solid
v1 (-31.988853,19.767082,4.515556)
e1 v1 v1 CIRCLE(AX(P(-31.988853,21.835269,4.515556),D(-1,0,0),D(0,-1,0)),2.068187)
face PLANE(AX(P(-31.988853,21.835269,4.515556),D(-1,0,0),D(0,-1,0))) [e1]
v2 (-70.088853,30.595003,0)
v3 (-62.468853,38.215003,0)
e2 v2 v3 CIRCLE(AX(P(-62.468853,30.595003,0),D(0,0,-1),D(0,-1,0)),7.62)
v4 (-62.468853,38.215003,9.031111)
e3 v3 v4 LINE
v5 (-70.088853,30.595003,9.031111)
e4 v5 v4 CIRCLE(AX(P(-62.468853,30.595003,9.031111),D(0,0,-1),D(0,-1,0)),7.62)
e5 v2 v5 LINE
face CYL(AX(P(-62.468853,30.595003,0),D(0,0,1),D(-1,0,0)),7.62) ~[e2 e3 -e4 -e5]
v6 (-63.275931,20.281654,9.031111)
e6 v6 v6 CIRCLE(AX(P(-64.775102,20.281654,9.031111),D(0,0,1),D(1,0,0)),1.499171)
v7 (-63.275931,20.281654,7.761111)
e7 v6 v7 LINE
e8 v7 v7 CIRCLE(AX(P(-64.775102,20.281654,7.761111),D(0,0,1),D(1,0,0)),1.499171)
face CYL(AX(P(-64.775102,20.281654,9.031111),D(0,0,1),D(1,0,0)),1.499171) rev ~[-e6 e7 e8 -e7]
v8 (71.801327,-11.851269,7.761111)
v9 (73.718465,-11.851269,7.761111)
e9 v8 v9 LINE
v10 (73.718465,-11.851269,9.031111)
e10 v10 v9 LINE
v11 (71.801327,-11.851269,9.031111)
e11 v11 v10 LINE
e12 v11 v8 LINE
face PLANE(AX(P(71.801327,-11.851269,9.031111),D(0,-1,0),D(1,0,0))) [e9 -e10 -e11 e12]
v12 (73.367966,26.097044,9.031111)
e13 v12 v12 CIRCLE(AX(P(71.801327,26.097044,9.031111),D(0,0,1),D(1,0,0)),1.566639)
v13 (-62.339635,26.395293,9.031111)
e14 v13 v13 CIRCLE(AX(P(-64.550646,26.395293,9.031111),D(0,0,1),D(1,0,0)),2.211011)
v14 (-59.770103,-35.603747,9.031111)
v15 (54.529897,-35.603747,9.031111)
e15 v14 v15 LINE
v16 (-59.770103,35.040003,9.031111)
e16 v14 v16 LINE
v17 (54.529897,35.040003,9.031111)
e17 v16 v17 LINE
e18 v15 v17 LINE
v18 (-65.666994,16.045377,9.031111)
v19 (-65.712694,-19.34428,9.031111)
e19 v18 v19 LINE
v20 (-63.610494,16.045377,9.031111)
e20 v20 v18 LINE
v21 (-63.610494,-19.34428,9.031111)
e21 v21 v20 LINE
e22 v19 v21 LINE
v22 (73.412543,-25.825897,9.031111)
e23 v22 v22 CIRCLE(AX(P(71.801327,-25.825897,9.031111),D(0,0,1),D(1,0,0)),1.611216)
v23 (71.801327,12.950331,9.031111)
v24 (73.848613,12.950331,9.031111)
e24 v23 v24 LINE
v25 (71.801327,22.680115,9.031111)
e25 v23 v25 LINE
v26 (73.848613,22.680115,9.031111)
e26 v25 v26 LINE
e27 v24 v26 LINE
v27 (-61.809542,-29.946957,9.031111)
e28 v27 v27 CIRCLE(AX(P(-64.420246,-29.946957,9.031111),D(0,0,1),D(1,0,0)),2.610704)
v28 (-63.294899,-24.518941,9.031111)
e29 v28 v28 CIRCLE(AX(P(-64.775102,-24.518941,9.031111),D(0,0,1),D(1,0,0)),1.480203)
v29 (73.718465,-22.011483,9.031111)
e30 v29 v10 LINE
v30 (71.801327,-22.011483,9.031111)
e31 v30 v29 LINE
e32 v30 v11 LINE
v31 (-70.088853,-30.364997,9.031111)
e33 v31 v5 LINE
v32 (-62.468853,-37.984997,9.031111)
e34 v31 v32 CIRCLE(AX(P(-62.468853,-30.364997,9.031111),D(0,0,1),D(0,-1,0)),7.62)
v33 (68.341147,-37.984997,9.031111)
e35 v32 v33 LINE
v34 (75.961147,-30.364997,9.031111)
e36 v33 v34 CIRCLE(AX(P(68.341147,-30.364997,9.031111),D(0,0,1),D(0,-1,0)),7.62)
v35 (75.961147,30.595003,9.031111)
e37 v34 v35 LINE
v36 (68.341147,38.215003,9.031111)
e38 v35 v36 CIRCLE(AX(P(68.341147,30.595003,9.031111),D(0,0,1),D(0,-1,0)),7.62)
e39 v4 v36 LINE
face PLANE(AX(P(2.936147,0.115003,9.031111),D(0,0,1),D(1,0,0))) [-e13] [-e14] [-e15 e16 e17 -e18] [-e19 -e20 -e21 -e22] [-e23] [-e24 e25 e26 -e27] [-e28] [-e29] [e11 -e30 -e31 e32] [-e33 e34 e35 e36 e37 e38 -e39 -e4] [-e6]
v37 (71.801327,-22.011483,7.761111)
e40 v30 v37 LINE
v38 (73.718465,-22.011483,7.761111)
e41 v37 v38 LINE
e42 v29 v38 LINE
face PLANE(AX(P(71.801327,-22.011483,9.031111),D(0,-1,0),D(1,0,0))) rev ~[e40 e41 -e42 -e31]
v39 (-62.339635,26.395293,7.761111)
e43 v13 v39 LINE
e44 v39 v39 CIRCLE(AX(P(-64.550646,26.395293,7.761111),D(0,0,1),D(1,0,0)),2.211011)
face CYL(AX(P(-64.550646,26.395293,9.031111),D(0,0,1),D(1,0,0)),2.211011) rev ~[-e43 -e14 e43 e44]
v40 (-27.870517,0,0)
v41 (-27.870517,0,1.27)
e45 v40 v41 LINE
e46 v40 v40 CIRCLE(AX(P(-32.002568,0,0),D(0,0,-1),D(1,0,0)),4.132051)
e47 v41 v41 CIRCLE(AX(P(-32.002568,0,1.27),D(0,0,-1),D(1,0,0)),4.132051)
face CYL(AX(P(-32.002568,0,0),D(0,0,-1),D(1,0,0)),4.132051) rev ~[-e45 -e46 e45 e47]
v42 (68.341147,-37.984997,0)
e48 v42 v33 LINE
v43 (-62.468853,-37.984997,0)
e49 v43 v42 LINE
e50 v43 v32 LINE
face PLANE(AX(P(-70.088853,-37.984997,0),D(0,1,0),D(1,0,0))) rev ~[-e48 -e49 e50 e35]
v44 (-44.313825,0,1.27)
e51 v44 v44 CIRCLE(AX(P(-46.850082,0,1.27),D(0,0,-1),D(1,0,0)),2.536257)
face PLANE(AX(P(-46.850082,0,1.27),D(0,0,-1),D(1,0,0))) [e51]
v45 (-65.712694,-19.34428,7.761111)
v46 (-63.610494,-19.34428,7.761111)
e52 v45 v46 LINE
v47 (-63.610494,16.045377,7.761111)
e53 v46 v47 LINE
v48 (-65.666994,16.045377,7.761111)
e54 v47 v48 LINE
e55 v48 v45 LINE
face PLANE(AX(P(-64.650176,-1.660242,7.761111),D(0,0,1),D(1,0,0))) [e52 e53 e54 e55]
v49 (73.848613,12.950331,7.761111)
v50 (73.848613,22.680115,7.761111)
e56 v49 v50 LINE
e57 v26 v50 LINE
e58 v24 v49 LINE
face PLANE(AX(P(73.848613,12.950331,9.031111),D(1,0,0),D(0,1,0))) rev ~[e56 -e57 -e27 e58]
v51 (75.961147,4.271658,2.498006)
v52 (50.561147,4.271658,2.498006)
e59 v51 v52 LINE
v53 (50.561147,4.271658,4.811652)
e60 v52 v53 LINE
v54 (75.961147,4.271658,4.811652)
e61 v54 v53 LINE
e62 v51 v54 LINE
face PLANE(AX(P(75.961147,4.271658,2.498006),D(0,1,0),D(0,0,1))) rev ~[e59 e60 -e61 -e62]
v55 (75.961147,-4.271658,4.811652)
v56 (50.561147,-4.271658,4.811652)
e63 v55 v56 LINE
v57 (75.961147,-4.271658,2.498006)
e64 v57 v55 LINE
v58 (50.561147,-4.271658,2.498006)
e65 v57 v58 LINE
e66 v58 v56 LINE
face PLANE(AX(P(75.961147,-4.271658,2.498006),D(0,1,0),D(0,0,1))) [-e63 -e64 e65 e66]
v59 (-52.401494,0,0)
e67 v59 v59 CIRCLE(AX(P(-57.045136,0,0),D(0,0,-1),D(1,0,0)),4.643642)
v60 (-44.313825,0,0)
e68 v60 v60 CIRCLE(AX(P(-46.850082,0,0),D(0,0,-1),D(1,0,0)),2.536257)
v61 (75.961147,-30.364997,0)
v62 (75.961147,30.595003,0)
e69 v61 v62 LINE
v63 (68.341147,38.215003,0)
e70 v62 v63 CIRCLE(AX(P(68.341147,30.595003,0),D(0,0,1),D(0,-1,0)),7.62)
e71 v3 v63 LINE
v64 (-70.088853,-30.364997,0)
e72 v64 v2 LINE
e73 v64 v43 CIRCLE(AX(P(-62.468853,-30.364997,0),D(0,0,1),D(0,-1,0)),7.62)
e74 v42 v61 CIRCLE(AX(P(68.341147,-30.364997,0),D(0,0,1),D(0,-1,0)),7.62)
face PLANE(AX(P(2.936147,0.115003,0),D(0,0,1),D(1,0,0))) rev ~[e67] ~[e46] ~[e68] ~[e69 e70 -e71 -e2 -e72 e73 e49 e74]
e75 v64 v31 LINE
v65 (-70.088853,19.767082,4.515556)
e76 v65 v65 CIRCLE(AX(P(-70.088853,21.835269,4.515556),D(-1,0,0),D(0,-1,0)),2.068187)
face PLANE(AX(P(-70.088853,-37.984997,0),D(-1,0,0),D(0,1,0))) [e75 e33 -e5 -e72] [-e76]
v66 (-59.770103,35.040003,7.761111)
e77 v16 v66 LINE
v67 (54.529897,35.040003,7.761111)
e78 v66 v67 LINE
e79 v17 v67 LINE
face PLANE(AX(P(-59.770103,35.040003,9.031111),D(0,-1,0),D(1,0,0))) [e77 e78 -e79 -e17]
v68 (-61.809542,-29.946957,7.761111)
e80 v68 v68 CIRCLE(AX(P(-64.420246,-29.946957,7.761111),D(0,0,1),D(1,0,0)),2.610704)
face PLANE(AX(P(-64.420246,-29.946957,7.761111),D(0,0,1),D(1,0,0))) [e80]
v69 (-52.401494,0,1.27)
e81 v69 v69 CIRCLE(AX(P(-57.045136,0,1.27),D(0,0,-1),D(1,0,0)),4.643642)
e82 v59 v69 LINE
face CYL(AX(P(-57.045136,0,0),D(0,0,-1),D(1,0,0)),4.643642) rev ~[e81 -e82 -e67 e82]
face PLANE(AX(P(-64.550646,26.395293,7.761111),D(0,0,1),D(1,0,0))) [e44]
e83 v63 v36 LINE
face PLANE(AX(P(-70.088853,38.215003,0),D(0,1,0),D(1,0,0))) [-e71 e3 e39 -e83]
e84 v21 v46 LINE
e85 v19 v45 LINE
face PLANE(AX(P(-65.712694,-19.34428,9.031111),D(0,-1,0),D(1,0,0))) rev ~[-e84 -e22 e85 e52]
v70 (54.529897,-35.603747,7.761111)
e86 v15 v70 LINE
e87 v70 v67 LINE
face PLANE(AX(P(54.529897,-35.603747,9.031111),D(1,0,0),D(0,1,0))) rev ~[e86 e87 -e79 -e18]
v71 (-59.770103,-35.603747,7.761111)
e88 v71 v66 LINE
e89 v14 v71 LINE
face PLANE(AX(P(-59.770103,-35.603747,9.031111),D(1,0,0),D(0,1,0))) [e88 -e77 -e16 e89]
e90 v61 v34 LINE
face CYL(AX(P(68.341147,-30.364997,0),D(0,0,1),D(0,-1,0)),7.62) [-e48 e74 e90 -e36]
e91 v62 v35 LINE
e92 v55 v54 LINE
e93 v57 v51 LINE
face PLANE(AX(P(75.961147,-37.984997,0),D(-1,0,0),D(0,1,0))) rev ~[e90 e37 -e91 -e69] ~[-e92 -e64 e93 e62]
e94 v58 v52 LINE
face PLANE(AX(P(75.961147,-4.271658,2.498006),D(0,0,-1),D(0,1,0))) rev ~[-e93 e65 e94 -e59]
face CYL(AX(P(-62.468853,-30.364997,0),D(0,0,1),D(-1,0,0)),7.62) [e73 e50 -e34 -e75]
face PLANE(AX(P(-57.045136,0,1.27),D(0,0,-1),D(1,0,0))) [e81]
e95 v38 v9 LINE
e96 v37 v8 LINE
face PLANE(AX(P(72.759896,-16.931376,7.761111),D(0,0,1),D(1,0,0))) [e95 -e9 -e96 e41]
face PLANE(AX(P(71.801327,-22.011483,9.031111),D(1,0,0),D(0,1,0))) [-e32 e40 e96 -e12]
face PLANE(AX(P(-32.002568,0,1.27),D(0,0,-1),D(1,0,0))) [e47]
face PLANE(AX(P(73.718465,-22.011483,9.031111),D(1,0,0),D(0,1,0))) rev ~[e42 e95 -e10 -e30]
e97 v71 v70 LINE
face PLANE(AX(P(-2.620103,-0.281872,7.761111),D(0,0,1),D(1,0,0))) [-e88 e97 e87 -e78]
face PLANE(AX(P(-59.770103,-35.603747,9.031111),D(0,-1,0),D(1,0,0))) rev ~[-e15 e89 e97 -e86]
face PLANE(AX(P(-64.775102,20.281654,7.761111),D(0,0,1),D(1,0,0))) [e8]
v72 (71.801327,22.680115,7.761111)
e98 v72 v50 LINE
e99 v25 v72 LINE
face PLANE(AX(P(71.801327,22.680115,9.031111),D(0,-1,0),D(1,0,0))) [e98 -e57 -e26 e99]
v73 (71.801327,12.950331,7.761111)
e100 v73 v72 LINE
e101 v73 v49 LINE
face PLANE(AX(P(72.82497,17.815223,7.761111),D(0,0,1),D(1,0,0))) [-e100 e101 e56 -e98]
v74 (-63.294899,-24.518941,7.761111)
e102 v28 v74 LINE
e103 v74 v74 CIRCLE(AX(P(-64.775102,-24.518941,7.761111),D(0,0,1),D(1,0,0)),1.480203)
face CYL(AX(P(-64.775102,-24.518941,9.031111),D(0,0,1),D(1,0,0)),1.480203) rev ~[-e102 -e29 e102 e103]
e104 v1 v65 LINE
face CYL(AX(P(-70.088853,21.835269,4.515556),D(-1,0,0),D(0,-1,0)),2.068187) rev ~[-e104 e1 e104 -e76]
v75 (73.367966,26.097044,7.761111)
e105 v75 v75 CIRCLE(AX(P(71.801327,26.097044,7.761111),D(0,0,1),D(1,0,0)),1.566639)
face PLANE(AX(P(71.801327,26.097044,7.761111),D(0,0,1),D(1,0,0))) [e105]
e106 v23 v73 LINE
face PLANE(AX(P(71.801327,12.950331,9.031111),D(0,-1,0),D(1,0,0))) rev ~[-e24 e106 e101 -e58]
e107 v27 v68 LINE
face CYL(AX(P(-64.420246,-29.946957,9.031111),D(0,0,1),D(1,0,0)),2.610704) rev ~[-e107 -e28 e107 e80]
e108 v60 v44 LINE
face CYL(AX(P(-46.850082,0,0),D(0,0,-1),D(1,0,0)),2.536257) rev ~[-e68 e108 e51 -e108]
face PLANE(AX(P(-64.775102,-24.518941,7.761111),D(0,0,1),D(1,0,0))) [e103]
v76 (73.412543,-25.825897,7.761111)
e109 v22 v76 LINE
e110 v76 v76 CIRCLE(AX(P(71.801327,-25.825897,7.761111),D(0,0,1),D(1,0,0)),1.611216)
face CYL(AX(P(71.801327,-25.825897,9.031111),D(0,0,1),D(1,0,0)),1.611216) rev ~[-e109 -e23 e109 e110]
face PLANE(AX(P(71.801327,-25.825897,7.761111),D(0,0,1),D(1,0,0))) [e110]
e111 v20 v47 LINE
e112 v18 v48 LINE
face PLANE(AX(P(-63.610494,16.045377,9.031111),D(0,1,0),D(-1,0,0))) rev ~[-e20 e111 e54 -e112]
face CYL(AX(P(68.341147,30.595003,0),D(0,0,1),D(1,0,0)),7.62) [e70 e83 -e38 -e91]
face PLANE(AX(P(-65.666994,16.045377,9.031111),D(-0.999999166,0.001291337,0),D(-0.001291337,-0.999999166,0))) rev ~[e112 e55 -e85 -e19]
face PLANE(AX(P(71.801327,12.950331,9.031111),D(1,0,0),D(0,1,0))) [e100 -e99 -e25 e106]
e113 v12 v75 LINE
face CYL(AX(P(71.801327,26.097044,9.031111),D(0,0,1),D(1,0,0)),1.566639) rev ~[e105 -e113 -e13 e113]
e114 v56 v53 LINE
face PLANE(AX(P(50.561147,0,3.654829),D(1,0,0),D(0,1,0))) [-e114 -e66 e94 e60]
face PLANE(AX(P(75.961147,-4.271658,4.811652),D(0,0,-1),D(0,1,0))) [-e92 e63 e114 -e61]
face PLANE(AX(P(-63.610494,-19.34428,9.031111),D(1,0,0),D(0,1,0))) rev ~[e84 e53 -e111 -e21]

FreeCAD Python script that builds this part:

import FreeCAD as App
import Part
import Sketcher
from FreeCAD import Vector
Q = App.Units.Quantity


def edges_at(feature, points):
    """Names of the edges that pass closest to the given points."""
    edges = feature.Shape.Edges
    near = lambda p: min(range(len(edges)), key=lambda i: edges[i].distToShape(Part.Vertex(*p))[0])
    return sorted({f"Edge{near(p) + 1}" for p in points})


def add_polygon(sketch, points):
    """Adds a closed chain of lines whose ends are joined by coincident constraints."""
    first, n = sketch.GeometryCount, len(points)
    for a, b in zip(points, points[1:] + points[:1]):
        sketch.addGeometry(Part.LineSegment(App.Vector(*a, 0), App.Vector(*b, 0)), False)
    for i in range(n):
        sketch.addConstraint(Sketcher.Constraint("Coincident", first + i, 2, first + (i + 1) % n, 1))

doc = App.newDocument("Part")
params = doc.addObject("Spreadsheet::Sheet", "Params")
for row, (alias, value) in enumerate([
    ("sketch1_height", "3 in"),
    ("sketch1_width", "5.75 in"),
    ("pad1_length", "9.031111 mm"),
    ("fillet_radius", "0.3 in"),
    ("pocket1_length", "1 in"),
    ("pocket2_length", "0.1 in"),
    ("pocket3_length", "1.5 in"),
    ("sketch5_width", "4.5 in"),
    ("sketch5_height", "2.78125 in"),
    ("pocket4_length", "0.05 in"),
    ("pocket5_length", "0.05 in"),
    ("pocket6_length", "0.05 in"),
], start=1):
    params.set(f"A{row}", alias)
    params.set(f"B{row}", "=" + value)
    params.setAlias(f"B{row}", alias)

body = doc.addObject("PartDesign::Body", "Body")

sketch1 = doc.addObject("Sketcher::SketchObject", "Sketch")
body.addObject(sketch1)
sketch1.AttachmentSupport = (doc.XY_Plane, [""])
sketch1.MapMode = "FlatFace"
add_polygon(sketch1, [(-70.088853, 38.215003), (-70.088853, -37.984997), (75.961147, -37.984997), (75.961147, 38.215003)])
sketch1.addConstraint([
    Sketcher.Constraint("Vertical", 0),
    Sketcher.Constraint("Horizontal", 1),
    Sketcher.Constraint("Vertical", 2),
    Sketcher.Constraint("Horizontal", 3),
    Sketcher.Constraint("DistanceY", 0, 2, 0, 1, Q("3 in")),
    Sketcher.Constraint("DistanceX", 1, 1, 1, 2, Q("5.75 in")),
    Sketcher.Constraint("DistanceX", 0, 2, -1, 1, Q("70.088853 mm")),
    Sketcher.Constraint("DistanceY", 0, 2, -1, 1, Q("37.984997 mm")),
])
sketch1.setExpression("Constraints[8]", "Params.sketch1_height")
sketch1.setExpression("Constraints[9]", "Params.sketch1_width")
pad1 = doc.addObject("PartDesign::Pad", "Pad")
body.addObject(pad1)
pad1.Profile = sketch1
pad1.setExpression("Length", "Params.pad1_length")
doc.recompute()

fillet = doc.addObject("PartDesign::Fillet", "Fillet")
body.addObject(fillet)
fillet.Base = (pad1, edges_at(pad1, [
    (75.961, -37.985, 4.516),
    (-70.089, -37.985, 4.516),
    (-70.089, 38.215, 4.516),
    (75.961, 38.215, 4.516),
]))
fillet.setExpression("Radius", "Params.fillet_radius")

sketch2 = doc.addObject("Sketcher::SketchObject", "Sketch001")
body.addObject(sketch2)
sketch2.AttachmentSupport = (doc.YZ_Plane, [""])
sketch2.MapMode = "FlatFace"
sketch2.AttachmentOffset = App.Placement(Vector(0, 0, 75.961147), App.Rotation())
add_polygon(sketch2, [(-4.271658, 4.811652), (-4.271658, 2.498006), (4.271658, 2.498006), (4.271658, 4.811652)])
sketch2.addConstraint([
    Sketcher.Constraint("Vertical", 0),
    Sketcher.Constraint("Horizontal", 1),
    Sketcher.Constraint("Vertical", 2),
    Sketcher.Constraint("Horizontal", 3),
    Sketcher.Constraint("DistanceX", 1, 1, 1, 2, Q("8.543316 mm")),
    Sketcher.Constraint("DistanceY", 0, 2, 0, 1, Q("2.313646 mm")),
    Sketcher.Constraint("DistanceX", 0, 2, -1, 1, Q("4.271658 mm")),
    Sketcher.Constraint("DistanceY", -1, 1, 2, 2, Q("4.811652 mm")),
])
pocket1 = doc.addObject("PartDesign::Pocket", "Pocket")
body.addObject(pocket1)
pocket1.Profile = sketch2
pocket1.setExpression("Length", "Params.pocket1_length")

sketch3 = doc.addObject("Sketcher::SketchObject", "Sketch002")
body.addObject(sketch3)
sketch3.AttachmentSupport = (doc.YZ_Plane, [""])
sketch3.MapMode = "FlatFace"
sketch3.AttachmentOffset = App.Placement(Vector(0, 0, -70.088853), App.Rotation())
sketch3.addGeometry(Part.Circle(Vector(21.835269, 4.515556, 0), Vector(0, 0, 1), 2.068187), False)
sketch3.addConstraint([
    Sketcher.Constraint("Diameter", 0, Q("4.136374 mm")),
    Sketcher.Constraint("DistanceX", -1, 1, 0, 3, Q("21.835269 mm")),
    Sketcher.Constraint("DistanceY", -1, 1, 0, 3, Q("4.515556 mm")),
])
pocket2 = doc.addObject("PartDesign::Pocket", "Pocket001")
body.addObject(pocket2)
pocket2.Profile = sketch3
pocket2.setExpression("Length", "Params.pocket2_length")
pocket2.Reversed = True

sketch4 = doc.addObject("Sketcher::SketchObject", "Sketch003")
body.addObject(sketch4)
sketch4.AttachmentSupport = (doc.YZ_Plane, [""])
sketch4.MapMode = "FlatFace"
sketch4.AttachmentOffset = App.Placement(Vector(0, 0, -70.088853), App.Rotation())
sketch4.addGeometry(Part.Circle(Vector(21.835269, 4.515556, 0), Vector(0, 0, 1), 2.068187), False)
sketch4.addConstraint([
    Sketcher.Constraint("Diameter", 0, Q("4.136374 mm")),
    Sketcher.Constraint("DistanceX", -1, 1, 0, 3, Q("21.835269 mm")),
    Sketcher.Constraint("DistanceY", -1, 1, 0, 3, Q("4.515556 mm")),
])
pocket3 = doc.addObject("PartDesign::Pocket", "Pocket002")
body.addObject(pocket3)
pocket3.Profile = sketch4
pocket3.setExpression("Length", "Params.pocket3_length")
pocket3.Reversed = True

sketch5 = doc.addObject("Sketcher::SketchObject", "Sketch004")
body.addObject(sketch5)
sketch5.AttachmentSupport = (doc.XY_Plane, [""])
sketch5.MapMode = "FlatFace"
sketch5.AttachmentOffset = App.Placement(Vector(0, 0, 9.031111), App.Rotation())
add_polygon(sketch5, [(-59.770103, 35.040003), (-59.770103, -35.603747), (54.529897, -35.603747), (54.529897, 35.040003)])
sketch5.addConstraint([
    Sketcher.Constraint("Vertical", 0),
    Sketcher.Constraint("Horizontal", 1),
    Sketcher.Constraint("Vertical", 2),
    Sketcher.Constraint("Horizontal", 3),
    Sketcher.Constraint("DistanceX", 1, 1, 1, 2, Q("4.5 in")),
    Sketcher.Constraint("DistanceY", 0, 2, 0, 1, Q("2.78125 in")),
    Sketcher.Constraint("DistanceX", 0, 2, -1, 1, Q("59.770103 mm")),
    Sketcher.Constraint("DistanceY", 0, 2, -1, 1, Q("35.603747 mm")),
])
sketch5.setExpression("Constraints[8]", "Params.sketch5_width")
sketch5.setExpression("Constraints[9]", "Params.sketch5_height")
pocket4 = doc.addObject("PartDesign::Pocket", "Pocket003")
body.addObject(pocket4)
pocket4.Profile = sketch5
pocket4.setExpression("Length", "Params.pocket4_length")

sketch6 = doc.addObject("Sketcher::SketchObject", "Sketch005")
body.addObject(sketch6)
sketch6.AttachmentSupport = (doc.XY_Plane, [""])
sketch6.MapMode = "FlatFace"
sketch6.AttachmentOffset = App.Placement(Vector(0, 0, 9.031111), App.Rotation())
sketch6.addGeometry(Part.Circle(Vector(-64.550646, 26.395293, 0), Vector(0, 0, 1), 2.211011), False)
sketch6.addGeometry(Part.Circle(Vector(-64.775102, 20.281654, 0), Vector(0, 0, 1), 1.499171), False)
sketch6.addGeometry(Part.Circle(Vector(71.801327, 26.097044, 0), Vector(0, 0, 1), 1.566639), False)
sketch6.addGeometry(Part.Circle(Vector(71.801327, -25.825897, 0), Vector(0, 0, 1), 1.611216), False)
sketch6.addGeometry(Part.Circle(Vector(-64.420246, -29.946957, 0), Vector(0, 0, 1), 2.610704), False)
sketch6.addGeometry(Part.Circle(Vector(-64.775102, -24.518941, 0), Vector(0, 0, 1), 1.480203), False)
add_polygon(sketch6, [(-63.610494, 16.045377), (-65.666994, 16.045377), (-65.712694, -19.34428), (-63.610494, -19.34428)])
add_polygon(sketch6, [(71.801327, 22.680115), (71.801327, 12.950331), (73.848613, 12.950331), (73.848613, 22.680115)])
add_polygon(sketch6, [(71.801327, -11.851269), (71.801327, -22.011483), (73.718465, -22.011483), (73.718465, -11.851269)])
sketch6.addConstraint([
    Sketcher.Constraint("Horizontal", 6),
    Sketcher.Constraint("Horizontal", 8),
    Sketcher.Constraint("Vertical", 9),
    Sketcher.Constraint("Vertical", 10),
    Sketcher.Constraint("Horizontal", 11),
    Sketcher.Constraint("Vertical", 12),
    Sketcher.Constraint("Horizontal", 13),
    Sketcher.Constraint("Vertical", 14),
    Sketcher.Constraint("Horizontal", 15),
    Sketcher.Constraint("Vertical", 16),
    Sketcher.Constraint("Horizontal", 17),
    Sketcher.Constraint("Vertical", 2, 3, 3, 3),
    Sketcher.Constraint("Vertical", 1, 3, 5, 3),
    Sketcher.Constraint("Vertical", 3, 3, 10, 2),
    Sketcher.Constraint("Vertical", 13, 2, 14, 2),
    Sketcher.Constraint("Diameter", 3, Q("3.222432 mm")),
    Sketcher.Constraint("Diameter", 4, Q("5.221408 mm")),
    Sketcher.Constraint("Diameter", 0, Q("4.422022 mm")),
    Sketcher.Constraint("Diameter", 1, Q("2.998342 mm")),
    Sketcher.Constraint("Diameter", 2, Q("3.133278 mm")),
    Sketcher.Constraint("Diameter", 5, Q("2.960406 mm")),
    Sketcher.Constraint("DistanceX", 6, 2, 6, 1, Q("2.0565 mm")),
    Sketcher.Constraint("DistanceX", 8, 1, 8, 2, Q("2.1022 mm")),
    Sketcher.Constraint("DistanceX", 15, 1, 15, 2, Q("1.917139 mm")),
    Sketcher.Constraint("DistanceX", 0, 3, 4, 3, Q("0.1304 mm")),
    Sketcher.Constraint("DistanceY", 4, 3, 2, 3, Q("56.044001 mm")),
    Sketcher.Constraint("DistanceY", 16, 2, 11, 2, Q("24.8016 mm")),
    Sketcher.Constraint("DistanceX", 11, 1, 11, 2, Q("2.047286 mm")),
    Sketcher.Constraint("DistanceY", 9, 1, 9, 2, Q("35.389657 mm")),
    Sketcher.Constraint("DistanceY", 10, 2, 10, 1, Q("9.729784 mm")),
    Sketcher.Constraint("DistanceY", 14, 2, 14, 1, Q("10.160214 mm")),
    Sketcher.Constraint("DistanceY", 5, 3, -1, 1, Q("24.518941 mm")),
    Sketcher.Constraint("DistanceY", 7, 2, -1, 1, Q("19.34428 mm")),
    Sketcher.Constraint("DistanceY", -1, 1, 10, 2, Q("12.950331 mm")),
    Sketcher.Constraint("DistanceY", 1, 3, 0, 3, Q("6.113639 mm")),
    Sketcher.Constraint("DistanceY", 2, 3, 0, 3, Q("0.298249 mm")),
    Sketcher.Constraint("DistanceX", 1, 3, 2, 3, Q("136.576429 mm")),
    Sketcher.Constraint("DistanceY", 3, 3, 2, 3, Q("51.922941 mm")),
    Sketcher.Constraint("DistanceX", 6, 2, 1, 3, Q("0.891892 mm")),
    Sketcher.Constraint("DistanceX", 6, 2, 0, 3, Q("1.116348 mm")),
    Sketcher.Constraint("DistanceY", 3, 3, 10, 2, Q("38.776228 mm")),
    Sketcher.Constraint("DistanceX", 0, 3, -1, 1, Q("64.550646 mm")),
])
pocket5 = doc.addObject("PartDesign::Pocket", "Pocket004")
body.addObject(pocket5)
pocket5.Profile = sketch6
pocket5.setExpression("Length", "Params.pocket5_length")

sketch7 = doc.addObject("Sketcher::SketchObject", "Sketch006")
body.addObject(sketch7)
sketch7.AttachmentSupport = (doc.XY_Plane, [""])
sketch7.MapMode = "FlatFace"
sketch7.addGeometry([
    Part.Circle(Vector(-57.045136, 0, 0), Vector(0, 0, 1), 4.643642),
    Part.Circle(Vector(-46.850082, 0, 0), Vector(0, 0, 1), 2.536257),
    Part.Circle(Vector(-32.002568, 0, 0), Vector(0, 0, 1), 4.132051),
], False)
sketch7.addConstraint([
    Sketcher.Constraint("PointOnObject", 0, 3, -1),
    Sketcher.Constraint("PointOnObject", 1, 3, -1),
    Sketcher.Constraint("PointOnObject", 2, 3, -1),
    Sketcher.Constraint("Diameter", 0, Q("9.287284 mm")),
    Sketcher.Constraint("Diameter", 1, Q("5.072514 mm")),
    Sketcher.Constraint("Diameter", 2, Q("8.264102 mm")),
    Sketcher.Constraint("DistanceX", 0, 3, 2, 3, Q("25.042568 mm")),
    Sketcher.Constraint("DistanceX", 0, 3, -1, 1, Q("57.045136 mm")),
    Sketcher.Constraint("DistanceX", 1, 3, -1, 1, Q("46.850082 mm")),
])
pocket6 = doc.addObject("PartDesign::Pocket", "Pocket005")
body.addObject(pocket6)
pocket6.Profile = sketch7
pocket6.setExpression("Length", "Params.pocket6_length")
pocket6.Reversed = True

doc.recompute()
